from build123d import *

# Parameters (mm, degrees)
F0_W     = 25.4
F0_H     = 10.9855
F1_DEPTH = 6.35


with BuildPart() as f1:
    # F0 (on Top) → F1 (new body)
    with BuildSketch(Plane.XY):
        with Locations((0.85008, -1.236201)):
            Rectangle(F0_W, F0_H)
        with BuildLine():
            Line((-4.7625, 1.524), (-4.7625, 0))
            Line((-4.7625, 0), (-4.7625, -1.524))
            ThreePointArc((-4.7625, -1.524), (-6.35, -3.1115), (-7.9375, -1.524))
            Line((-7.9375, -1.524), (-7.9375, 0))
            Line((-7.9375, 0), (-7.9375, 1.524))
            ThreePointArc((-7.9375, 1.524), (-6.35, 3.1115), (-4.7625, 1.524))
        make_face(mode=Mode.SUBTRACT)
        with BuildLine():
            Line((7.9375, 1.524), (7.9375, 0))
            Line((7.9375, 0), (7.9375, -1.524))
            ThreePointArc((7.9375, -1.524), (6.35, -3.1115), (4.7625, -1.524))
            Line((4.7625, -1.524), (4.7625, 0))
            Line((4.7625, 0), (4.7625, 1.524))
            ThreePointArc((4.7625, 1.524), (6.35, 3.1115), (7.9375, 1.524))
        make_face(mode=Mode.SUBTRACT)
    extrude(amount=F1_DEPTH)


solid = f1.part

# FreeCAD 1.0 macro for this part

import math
import FreeCAD as App
import Part
import Sketcher

V = App.Vector
Q = App.Units.Quantity


def add_polygon(sketch, points):
    """Adds a closed chain of lines whose ends are joined by coincident constraints."""
    first, n = sketch.GeometryCount, len(points)
    for a, b in zip(points, points[1:] + points[:1]):
        sketch.addGeometry(Part.LineSegment(App.Vector(*a, 0), App.Vector(*b, 0)), False)
    for i in range(n):
        sketch.addConstraint(Sketcher.Constraint("Coincident", first + i, 2, first + (i + 1) % n, 1))

doc = App.newDocument("Part")
body = doc.addObject("PartDesign::Body", "Body")

# Sketch on XY plane
sketch1 = body.newObject("Sketcher::SketchObject", "Sketch")
sketch1.AttachmentSupport = (doc.getObject("XY_Plane"), [""])
sketch1.MapMode = "FlatFace"
add_polygon(sketch1, [(-11.8, 4.3), (-11.8, -6.7), (13.6, -6.7), (13.6, 4.3)])  # lines 0-3
sketch1.addGeometry(Part.ArcOfCircle(Part.Circle(V(6.3, 1.5, 0), V(0, 0, 1), 1.6), math.radians(0), math.radians(180)), False)  # 4
sketch1.addGeometry(Part.LineSegment(V(7.9, 1.5, 0), V(7.9, -1.5, 0)), False)  # 5
sketch1.addGeometry(Part.ArcOfCircle(Part.Circle(V(6.3, -1.5, 0), V(0, 0, 1), 1.6), math.radians(180), math.radians(360)), False)  # 6
sketch1.addGeometry(Part.LineSegment(V(4.8, -1.5, 0), V(4.8, 1.5, 0)), False)  # 7
sketch1.addGeometry(Part.ArcOfCircle(Part.Circle(V(-6.3, 1.5, 0), V(0, 0, 1), 1.6), math.radians(0), math.radians(180)), False)  # 8
sketch1.addGeometry(Part.LineSegment(V(-4.8, 1.5, 0), V(-4.8, -1.5, 0)), False)  # 9
sketch1.addGeometry(Part.ArcOfCircle(Part.Circle(V(-6.3, -1.5, 0), V(0, 0, 1), 1.6), math.radians(180), math.radians(360)), False)  # 10
sketch1.addGeometry(Part.LineSegment(V(-7.9, -1.5, 0), V(-7.9, 1.5, 0)), False)  # 11
sketch1.addConstraint([
    Sketcher.Constraint("Tangent", 4, 1, 5, 1),
    Sketcher.Constraint("Tangent", 5, 2, 6, 2),
    Sketcher.Constraint("Tangent", 6, 1, 7, 1),
    Sketcher.Constraint("Tangent", 7, 2, 4, 2),
    Sketcher.Constraint("Tangent", 8, 1, 9, 1),
    Sketcher.Constraint("Tangent", 9, 2, 10, 2),
    Sketcher.Constraint("Tangent", 10, 1, 11, 1),
    Sketcher.Constraint("Tangent", 11, 2, 8, 2),
    Sketcher.Constraint("Vertical", 0),
    Sketcher.Constraint("Horizontal", 1),
    Sketcher.Constraint("Vertical", 2),
    Sketcher.Constraint("Horizontal", 3),
    Sketcher.Constraint("Vertical", 5),
    Sketcher.Constraint("Vertical", 7),
    Sketcher.Constraint("Vertical", 9),
    Sketcher.Constraint("Vertical", 11),
    Sketcher.Constraint("Equal", 6, 8),
    Sketcher.Constraint("Symmetric", 6, 3, 8, 3, -1, 1),
    Sketcher.Constraint("Horizontal", 4, 3, 8, 3),
    Sketcher.Constraint("Horizontal", 6, 3, 10, 3),
    Sketcher.Constraint("DistanceX", 1, 1, 1, 2, Q("1 in")),
    Sketcher.Constraint("Radius", 4, Q("0.0625 in")),
    Sketcher.Constraint("DistanceY", 5, 2, 5, 1, Q("0.12 in")),
    Sketcher.Constraint("DistanceX", 8, 3, 4, 3, Q("0.5 in")),
    Sketcher.Constraint("DistanceY", 0, 2, 0, 1, Q("0.4325 in")),
    Sketcher.Constraint("DistanceX", 0, 2, -1, 1, 11.84992),
    Sketcher.Constraint("DistanceY", 0, 2, -1, 1, 6.728951),
])
pad1 = body.newObject("PartDesign::Pad", "Pad")
pad1.Profile = sketch1
pad1.Length = Q("0.25 in")

doc.recompute()
